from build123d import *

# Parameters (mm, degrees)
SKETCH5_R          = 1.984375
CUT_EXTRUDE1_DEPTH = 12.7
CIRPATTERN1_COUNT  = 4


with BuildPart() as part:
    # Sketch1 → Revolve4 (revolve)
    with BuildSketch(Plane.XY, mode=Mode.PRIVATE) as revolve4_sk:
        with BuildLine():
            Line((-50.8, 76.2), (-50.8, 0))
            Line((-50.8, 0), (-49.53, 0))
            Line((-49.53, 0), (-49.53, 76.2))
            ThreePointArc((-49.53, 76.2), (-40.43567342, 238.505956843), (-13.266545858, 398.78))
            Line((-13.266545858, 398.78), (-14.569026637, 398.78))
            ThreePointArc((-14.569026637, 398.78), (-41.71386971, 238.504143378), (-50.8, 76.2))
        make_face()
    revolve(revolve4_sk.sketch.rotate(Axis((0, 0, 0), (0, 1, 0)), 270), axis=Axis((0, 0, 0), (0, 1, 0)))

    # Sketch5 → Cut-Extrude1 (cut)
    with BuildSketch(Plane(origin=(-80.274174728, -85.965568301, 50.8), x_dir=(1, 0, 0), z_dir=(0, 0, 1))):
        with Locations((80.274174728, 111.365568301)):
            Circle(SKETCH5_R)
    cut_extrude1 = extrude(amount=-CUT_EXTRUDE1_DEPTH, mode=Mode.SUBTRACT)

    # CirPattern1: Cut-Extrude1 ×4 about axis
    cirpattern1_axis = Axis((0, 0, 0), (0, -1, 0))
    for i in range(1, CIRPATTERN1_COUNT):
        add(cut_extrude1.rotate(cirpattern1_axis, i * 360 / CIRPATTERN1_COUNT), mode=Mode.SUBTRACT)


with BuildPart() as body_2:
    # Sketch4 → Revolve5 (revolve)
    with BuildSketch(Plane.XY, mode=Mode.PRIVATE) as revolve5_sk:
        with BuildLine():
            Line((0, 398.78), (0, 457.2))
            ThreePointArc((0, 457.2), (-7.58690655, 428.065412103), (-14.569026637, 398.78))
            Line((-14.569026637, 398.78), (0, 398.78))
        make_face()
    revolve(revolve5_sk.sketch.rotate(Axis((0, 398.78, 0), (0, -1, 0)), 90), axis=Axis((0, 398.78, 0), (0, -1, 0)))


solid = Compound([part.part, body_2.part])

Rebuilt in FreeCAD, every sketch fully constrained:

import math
import FreeCAD as App
import Part
import Sketcher
Q = App.Units.Quantity

doc = App.newDocument("Part")
body = doc.addObject("PartDesign::Body", "Body")

sketch1 = body.newObject("Sketcher::SketchObject", "Sketch")
sketch1.AttachmentSupport = (doc.getObject("XY_Plane"), [""])
sketch1.MapMode = "FlatFace"
sketch1.addGeometry([
    Part.LineSegment(App.Vector(-50.8, 76.2, 0), App.Vector(-50.8, 0, 0)),
    Part.LineSegment(App.Vector(-50.8, 0, 0), App.Vector(-49.5, 0, 0)),
    Part.LineSegment(App.Vector(-49.5, 0, 0), App.Vector(-49.5, 76.2, 0)),
    Part.ArcOfCircle(Part.Circle(App.Vector(1403.3, 76.2, 0), App.Vector(0, 0, 1), 1452.9), math.radians(167.17), math.radians(180)),
    Part.LineSegment(App.Vector(-13.3, 398.8, 0), App.Vector(-14.6, 398.8, 0)),
    Part.ArcOfCircle(Part.Circle(App.Vector(1403.4, 76.2, 0), App.Vector(0, 0, 1), 1454.2), math.radians(167.18), math.radians(180)),
], False)
sketch1.addConstraint([
    Sketcher.Constraint("Coincident", 0, 2, 1, 1),
    Sketcher.Constraint("Coincident", 1, 2, 2, 1),
    Sketcher.Constraint("Tangent", 2, 2, 3, 2),
    Sketcher.Constraint("Coincident", 3, 1, 4, 1),
    Sketcher.Constraint("Coincident", 4, 2, 5, 1),
    Sketcher.Constraint("Tangent", 5, 2, 0, 1),
    Sketcher.Constraint("Vertical", 0),
    Sketcher.Constraint("Horizontal", 1),
    Sketcher.Constraint("Vertical", 2),
    Sketcher.Constraint("Horizontal", 4),
    Sketcher.Constraint("Coincident", 5, 3, 3, 3),
    Sketcher.Constraint("PointOnObject", 0, 2, -1),
    Sketcher.Constraint("Radius", 3, Q("57.2 in")),
    Sketcher.Constraint("DistanceY", 0, 2, 0, 1, Q("3 in")),
    Sketcher.Constraint("Radius", 5, Q("57.25 in")),
    Sketcher.Constraint("DistanceX", 0, 2, -1, 1, Q("2 in")),
    Sketcher.Constraint("DistanceY", -1, 1, 4, 2, Q("15.7 in")),
])
revolution = body.newObject("PartDesign::Revolution", "Revolution")
revolution.Profile = sketch1
revolution.ReferenceAxis = (sketch1, ["V_Axis"])
revolution.Angle = 360

sketch2 = body.newObject("Sketcher::SketchObject", "Sketch001")
sketch2.AttachmentSupport = (doc.getObject("XY_Plane"), [""])
sketch2.MapMode = "FlatFace"
sketch2.AttachmentOffset = App.Placement(App.Vector(0, 0, 2 * 25.4), App.Rotation())
sketch2.addGeometry(Part.Circle(App.Vector(0, 25.4, 0), App.Vector(0, 0, 1), 2), False)
sketch2.addConstraint([
    Sketcher.Constraint("PointOnObject", 0, 3, -2),
    Sketcher.Constraint("Diameter", 0, Q("0.15625 in")),
    Sketcher.Constraint("DistanceY", -1, 1, 0, 3, Q("1 in")),
])
pocket1 = body.newObject("PartDesign::Pocket", "Pocket")
pocket1.Profile = sketch2
pocket1.Length = Q("0.5 in")
doc.recompute()

polarpattern = body.newObject("PartDesign::PolarPattern", "PolarPattern")
polarpattern.Originals = [pocket1]
polarpattern.Axis = (doc.getObject("Y_Axis"), [""])
polarpattern.Angle = 360
polarpattern.Occurrences = 4
body.Tip = polarpattern
body2 = doc.addObject("PartDesign::Body", "Body001")

sketch3 = body2.newObject("Sketcher::SketchObject", "Sketch002")
sketch3.AttachmentSupport = (doc.getObject("XY_Plane001"), [""])
sketch3.MapMode = "FlatFace"
sketch3.addGeometry([
    Part.LineSegment(App.Vector(0, 399, 0), App.Vector(0, 457, 0)),
    Part.ArcOfCircle(Part.Circle(App.Vector(1403, 76, 0), App.Vector(0, 0, 1), 1454), math.radians(164.81), math.radians(167.18)),
    Part.LineSegment(App.Vector(-15, 399, 0), App.Vector(0, 399, 0)),
], False)
sketch3.addConstraint([
    Sketcher.Constraint("Coincident", 0, 2, 1, 1),
    Sketcher.Constraint("Coincident", 1, 2, 2, 1),
    Sketcher.Constraint("Coincident", 2, 2, 0, 1),
    Sketcher.Constraint("Vertical", 0),
    Sketcher.Constraint("Horizontal", 2),
    Sketcher.Constraint("PointOnObject", 0, 2, -2),
    Sketcher.Constraint("Radius", 1, Q("57.25 in")),
    Sketcher.Constraint("DistanceY", 0, 1, 0, 2, Q("2.3 in")),
    Sketcher.Constraint("DistanceY", -1, 1, 1, 3, Q("3 in")),
    Sketcher.Constraint("DistanceY", -1, 1, 0, 2, Q("18 in")),
])
revolution2 = body2.newObject("PartDesign::Revolution", "Revolution001")
revolution2.Profile = sketch3
revolution2.ReferenceAxis = (sketch3, ["V_Axis"])
revolution2.Angle = 360

doc.recompute()
